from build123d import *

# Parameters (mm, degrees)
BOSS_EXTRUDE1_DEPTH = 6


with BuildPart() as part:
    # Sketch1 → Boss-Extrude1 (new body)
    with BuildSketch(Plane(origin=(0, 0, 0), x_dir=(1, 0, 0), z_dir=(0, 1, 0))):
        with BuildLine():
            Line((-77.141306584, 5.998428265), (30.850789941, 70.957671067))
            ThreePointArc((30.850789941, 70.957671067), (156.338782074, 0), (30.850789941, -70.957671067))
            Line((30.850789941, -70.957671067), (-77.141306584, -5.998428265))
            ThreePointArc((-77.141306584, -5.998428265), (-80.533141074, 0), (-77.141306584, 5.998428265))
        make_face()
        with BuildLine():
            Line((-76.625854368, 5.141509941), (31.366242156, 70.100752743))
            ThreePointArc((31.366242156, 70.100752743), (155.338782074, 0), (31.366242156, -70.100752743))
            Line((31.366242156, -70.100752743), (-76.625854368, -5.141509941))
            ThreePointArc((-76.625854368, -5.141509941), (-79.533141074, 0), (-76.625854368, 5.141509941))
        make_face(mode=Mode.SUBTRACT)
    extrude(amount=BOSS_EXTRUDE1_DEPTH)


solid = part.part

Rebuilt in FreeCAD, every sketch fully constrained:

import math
import FreeCAD as App
import Part
import Sketcher

V = App.Vector
Q = App.Units.Quantity

doc = App.newDocument("Part")
body = doc.addObject("PartDesign::Body", "Body")

sketch1 = body.newObject("Sketcher::SketchObject", "Sketch")
sketch1.AttachmentSupport = (doc.getObject("XZ_Plane"), [""])
sketch1.MapMode = "FlatFace"
sketch1.addGeometry([
    Part.LineSegment(V(31, -71, 0), V(-77, -6, 0)),
    Part.ArcOfCircle(Part.Circle(V(-74, 0, 0), V(0, 0, 1), 7), math.radians(121), math.radians(239)),
    Part.LineSegment(V(-77, 6, 0), V(31, 71, 0)),
    Part.ArcOfCircle(Part.Circle(V(74, 0, 0), V(0, 0, 1), 83), math.radians(-121), math.radians(121)),
    Part.LineSegment(V(-77, -5, 0), V(31, -70, 0)),
    Part.ArcOfCircle(Part.Circle(V(74, 0, 0), V(0, 0, 1), 82), math.radians(-121), math.radians(121)),
    Part.LineSegment(V(31, 70, 0), V(-77, 5, 0)),
    Part.ArcOfCircle(Part.Circle(V(-74, 0, 0), V(0, 0, 1), 6), math.radians(121), math.radians(239)),
], False)
sketch1.addConstraint([
    Sketcher.Constraint("Tangent", 0, 2, 1, 2),
    Sketcher.Constraint("Tangent", 1, 1, 2, 1),
    Sketcher.Constraint("Tangent", 2, 2, 3, 2),
    Sketcher.Constraint("Tangent", 3, 1, 0, 1),
    Sketcher.Constraint("Tangent", 4, 2, 5, 1),
    Sketcher.Constraint("Tangent", 5, 2, 6, 1),
    Sketcher.Constraint("Tangent", 6, 2, 7, 1),
    Sketcher.Constraint("Tangent", 7, 2, 4, 1),
    Sketcher.Constraint("Coincident", 5, 3, 3, 3),
    Sketcher.Constraint("Coincident", 7, 3, 1, 3),
    Sketcher.Constraint("Symmetric", 1, 3, 3, 3, -1, 1),
    Sketcher.Constraint("PointOnObject", 1, 3, -1),
    Sketcher.Constraint("Parallel", 0, 4),
    Sketcher.Constraint("Radius", 1, Q("7 mm")),
    Sketcher.Constraint("Radius", 7, Q("6 mm")),
    Sketcher.Constraint("Radius", 3, Q("82.805641 mm")),
    Sketcher.Constraint("DistanceX", 4, 2, 3, 3, Q("42.166899 mm")),
])
pad1 = body.newObject("PartDesign::Pad", "Pad")
pad1.Profile = sketch1
pad1.Length = 6
pad1.Reversed = True

doc.recompute()
